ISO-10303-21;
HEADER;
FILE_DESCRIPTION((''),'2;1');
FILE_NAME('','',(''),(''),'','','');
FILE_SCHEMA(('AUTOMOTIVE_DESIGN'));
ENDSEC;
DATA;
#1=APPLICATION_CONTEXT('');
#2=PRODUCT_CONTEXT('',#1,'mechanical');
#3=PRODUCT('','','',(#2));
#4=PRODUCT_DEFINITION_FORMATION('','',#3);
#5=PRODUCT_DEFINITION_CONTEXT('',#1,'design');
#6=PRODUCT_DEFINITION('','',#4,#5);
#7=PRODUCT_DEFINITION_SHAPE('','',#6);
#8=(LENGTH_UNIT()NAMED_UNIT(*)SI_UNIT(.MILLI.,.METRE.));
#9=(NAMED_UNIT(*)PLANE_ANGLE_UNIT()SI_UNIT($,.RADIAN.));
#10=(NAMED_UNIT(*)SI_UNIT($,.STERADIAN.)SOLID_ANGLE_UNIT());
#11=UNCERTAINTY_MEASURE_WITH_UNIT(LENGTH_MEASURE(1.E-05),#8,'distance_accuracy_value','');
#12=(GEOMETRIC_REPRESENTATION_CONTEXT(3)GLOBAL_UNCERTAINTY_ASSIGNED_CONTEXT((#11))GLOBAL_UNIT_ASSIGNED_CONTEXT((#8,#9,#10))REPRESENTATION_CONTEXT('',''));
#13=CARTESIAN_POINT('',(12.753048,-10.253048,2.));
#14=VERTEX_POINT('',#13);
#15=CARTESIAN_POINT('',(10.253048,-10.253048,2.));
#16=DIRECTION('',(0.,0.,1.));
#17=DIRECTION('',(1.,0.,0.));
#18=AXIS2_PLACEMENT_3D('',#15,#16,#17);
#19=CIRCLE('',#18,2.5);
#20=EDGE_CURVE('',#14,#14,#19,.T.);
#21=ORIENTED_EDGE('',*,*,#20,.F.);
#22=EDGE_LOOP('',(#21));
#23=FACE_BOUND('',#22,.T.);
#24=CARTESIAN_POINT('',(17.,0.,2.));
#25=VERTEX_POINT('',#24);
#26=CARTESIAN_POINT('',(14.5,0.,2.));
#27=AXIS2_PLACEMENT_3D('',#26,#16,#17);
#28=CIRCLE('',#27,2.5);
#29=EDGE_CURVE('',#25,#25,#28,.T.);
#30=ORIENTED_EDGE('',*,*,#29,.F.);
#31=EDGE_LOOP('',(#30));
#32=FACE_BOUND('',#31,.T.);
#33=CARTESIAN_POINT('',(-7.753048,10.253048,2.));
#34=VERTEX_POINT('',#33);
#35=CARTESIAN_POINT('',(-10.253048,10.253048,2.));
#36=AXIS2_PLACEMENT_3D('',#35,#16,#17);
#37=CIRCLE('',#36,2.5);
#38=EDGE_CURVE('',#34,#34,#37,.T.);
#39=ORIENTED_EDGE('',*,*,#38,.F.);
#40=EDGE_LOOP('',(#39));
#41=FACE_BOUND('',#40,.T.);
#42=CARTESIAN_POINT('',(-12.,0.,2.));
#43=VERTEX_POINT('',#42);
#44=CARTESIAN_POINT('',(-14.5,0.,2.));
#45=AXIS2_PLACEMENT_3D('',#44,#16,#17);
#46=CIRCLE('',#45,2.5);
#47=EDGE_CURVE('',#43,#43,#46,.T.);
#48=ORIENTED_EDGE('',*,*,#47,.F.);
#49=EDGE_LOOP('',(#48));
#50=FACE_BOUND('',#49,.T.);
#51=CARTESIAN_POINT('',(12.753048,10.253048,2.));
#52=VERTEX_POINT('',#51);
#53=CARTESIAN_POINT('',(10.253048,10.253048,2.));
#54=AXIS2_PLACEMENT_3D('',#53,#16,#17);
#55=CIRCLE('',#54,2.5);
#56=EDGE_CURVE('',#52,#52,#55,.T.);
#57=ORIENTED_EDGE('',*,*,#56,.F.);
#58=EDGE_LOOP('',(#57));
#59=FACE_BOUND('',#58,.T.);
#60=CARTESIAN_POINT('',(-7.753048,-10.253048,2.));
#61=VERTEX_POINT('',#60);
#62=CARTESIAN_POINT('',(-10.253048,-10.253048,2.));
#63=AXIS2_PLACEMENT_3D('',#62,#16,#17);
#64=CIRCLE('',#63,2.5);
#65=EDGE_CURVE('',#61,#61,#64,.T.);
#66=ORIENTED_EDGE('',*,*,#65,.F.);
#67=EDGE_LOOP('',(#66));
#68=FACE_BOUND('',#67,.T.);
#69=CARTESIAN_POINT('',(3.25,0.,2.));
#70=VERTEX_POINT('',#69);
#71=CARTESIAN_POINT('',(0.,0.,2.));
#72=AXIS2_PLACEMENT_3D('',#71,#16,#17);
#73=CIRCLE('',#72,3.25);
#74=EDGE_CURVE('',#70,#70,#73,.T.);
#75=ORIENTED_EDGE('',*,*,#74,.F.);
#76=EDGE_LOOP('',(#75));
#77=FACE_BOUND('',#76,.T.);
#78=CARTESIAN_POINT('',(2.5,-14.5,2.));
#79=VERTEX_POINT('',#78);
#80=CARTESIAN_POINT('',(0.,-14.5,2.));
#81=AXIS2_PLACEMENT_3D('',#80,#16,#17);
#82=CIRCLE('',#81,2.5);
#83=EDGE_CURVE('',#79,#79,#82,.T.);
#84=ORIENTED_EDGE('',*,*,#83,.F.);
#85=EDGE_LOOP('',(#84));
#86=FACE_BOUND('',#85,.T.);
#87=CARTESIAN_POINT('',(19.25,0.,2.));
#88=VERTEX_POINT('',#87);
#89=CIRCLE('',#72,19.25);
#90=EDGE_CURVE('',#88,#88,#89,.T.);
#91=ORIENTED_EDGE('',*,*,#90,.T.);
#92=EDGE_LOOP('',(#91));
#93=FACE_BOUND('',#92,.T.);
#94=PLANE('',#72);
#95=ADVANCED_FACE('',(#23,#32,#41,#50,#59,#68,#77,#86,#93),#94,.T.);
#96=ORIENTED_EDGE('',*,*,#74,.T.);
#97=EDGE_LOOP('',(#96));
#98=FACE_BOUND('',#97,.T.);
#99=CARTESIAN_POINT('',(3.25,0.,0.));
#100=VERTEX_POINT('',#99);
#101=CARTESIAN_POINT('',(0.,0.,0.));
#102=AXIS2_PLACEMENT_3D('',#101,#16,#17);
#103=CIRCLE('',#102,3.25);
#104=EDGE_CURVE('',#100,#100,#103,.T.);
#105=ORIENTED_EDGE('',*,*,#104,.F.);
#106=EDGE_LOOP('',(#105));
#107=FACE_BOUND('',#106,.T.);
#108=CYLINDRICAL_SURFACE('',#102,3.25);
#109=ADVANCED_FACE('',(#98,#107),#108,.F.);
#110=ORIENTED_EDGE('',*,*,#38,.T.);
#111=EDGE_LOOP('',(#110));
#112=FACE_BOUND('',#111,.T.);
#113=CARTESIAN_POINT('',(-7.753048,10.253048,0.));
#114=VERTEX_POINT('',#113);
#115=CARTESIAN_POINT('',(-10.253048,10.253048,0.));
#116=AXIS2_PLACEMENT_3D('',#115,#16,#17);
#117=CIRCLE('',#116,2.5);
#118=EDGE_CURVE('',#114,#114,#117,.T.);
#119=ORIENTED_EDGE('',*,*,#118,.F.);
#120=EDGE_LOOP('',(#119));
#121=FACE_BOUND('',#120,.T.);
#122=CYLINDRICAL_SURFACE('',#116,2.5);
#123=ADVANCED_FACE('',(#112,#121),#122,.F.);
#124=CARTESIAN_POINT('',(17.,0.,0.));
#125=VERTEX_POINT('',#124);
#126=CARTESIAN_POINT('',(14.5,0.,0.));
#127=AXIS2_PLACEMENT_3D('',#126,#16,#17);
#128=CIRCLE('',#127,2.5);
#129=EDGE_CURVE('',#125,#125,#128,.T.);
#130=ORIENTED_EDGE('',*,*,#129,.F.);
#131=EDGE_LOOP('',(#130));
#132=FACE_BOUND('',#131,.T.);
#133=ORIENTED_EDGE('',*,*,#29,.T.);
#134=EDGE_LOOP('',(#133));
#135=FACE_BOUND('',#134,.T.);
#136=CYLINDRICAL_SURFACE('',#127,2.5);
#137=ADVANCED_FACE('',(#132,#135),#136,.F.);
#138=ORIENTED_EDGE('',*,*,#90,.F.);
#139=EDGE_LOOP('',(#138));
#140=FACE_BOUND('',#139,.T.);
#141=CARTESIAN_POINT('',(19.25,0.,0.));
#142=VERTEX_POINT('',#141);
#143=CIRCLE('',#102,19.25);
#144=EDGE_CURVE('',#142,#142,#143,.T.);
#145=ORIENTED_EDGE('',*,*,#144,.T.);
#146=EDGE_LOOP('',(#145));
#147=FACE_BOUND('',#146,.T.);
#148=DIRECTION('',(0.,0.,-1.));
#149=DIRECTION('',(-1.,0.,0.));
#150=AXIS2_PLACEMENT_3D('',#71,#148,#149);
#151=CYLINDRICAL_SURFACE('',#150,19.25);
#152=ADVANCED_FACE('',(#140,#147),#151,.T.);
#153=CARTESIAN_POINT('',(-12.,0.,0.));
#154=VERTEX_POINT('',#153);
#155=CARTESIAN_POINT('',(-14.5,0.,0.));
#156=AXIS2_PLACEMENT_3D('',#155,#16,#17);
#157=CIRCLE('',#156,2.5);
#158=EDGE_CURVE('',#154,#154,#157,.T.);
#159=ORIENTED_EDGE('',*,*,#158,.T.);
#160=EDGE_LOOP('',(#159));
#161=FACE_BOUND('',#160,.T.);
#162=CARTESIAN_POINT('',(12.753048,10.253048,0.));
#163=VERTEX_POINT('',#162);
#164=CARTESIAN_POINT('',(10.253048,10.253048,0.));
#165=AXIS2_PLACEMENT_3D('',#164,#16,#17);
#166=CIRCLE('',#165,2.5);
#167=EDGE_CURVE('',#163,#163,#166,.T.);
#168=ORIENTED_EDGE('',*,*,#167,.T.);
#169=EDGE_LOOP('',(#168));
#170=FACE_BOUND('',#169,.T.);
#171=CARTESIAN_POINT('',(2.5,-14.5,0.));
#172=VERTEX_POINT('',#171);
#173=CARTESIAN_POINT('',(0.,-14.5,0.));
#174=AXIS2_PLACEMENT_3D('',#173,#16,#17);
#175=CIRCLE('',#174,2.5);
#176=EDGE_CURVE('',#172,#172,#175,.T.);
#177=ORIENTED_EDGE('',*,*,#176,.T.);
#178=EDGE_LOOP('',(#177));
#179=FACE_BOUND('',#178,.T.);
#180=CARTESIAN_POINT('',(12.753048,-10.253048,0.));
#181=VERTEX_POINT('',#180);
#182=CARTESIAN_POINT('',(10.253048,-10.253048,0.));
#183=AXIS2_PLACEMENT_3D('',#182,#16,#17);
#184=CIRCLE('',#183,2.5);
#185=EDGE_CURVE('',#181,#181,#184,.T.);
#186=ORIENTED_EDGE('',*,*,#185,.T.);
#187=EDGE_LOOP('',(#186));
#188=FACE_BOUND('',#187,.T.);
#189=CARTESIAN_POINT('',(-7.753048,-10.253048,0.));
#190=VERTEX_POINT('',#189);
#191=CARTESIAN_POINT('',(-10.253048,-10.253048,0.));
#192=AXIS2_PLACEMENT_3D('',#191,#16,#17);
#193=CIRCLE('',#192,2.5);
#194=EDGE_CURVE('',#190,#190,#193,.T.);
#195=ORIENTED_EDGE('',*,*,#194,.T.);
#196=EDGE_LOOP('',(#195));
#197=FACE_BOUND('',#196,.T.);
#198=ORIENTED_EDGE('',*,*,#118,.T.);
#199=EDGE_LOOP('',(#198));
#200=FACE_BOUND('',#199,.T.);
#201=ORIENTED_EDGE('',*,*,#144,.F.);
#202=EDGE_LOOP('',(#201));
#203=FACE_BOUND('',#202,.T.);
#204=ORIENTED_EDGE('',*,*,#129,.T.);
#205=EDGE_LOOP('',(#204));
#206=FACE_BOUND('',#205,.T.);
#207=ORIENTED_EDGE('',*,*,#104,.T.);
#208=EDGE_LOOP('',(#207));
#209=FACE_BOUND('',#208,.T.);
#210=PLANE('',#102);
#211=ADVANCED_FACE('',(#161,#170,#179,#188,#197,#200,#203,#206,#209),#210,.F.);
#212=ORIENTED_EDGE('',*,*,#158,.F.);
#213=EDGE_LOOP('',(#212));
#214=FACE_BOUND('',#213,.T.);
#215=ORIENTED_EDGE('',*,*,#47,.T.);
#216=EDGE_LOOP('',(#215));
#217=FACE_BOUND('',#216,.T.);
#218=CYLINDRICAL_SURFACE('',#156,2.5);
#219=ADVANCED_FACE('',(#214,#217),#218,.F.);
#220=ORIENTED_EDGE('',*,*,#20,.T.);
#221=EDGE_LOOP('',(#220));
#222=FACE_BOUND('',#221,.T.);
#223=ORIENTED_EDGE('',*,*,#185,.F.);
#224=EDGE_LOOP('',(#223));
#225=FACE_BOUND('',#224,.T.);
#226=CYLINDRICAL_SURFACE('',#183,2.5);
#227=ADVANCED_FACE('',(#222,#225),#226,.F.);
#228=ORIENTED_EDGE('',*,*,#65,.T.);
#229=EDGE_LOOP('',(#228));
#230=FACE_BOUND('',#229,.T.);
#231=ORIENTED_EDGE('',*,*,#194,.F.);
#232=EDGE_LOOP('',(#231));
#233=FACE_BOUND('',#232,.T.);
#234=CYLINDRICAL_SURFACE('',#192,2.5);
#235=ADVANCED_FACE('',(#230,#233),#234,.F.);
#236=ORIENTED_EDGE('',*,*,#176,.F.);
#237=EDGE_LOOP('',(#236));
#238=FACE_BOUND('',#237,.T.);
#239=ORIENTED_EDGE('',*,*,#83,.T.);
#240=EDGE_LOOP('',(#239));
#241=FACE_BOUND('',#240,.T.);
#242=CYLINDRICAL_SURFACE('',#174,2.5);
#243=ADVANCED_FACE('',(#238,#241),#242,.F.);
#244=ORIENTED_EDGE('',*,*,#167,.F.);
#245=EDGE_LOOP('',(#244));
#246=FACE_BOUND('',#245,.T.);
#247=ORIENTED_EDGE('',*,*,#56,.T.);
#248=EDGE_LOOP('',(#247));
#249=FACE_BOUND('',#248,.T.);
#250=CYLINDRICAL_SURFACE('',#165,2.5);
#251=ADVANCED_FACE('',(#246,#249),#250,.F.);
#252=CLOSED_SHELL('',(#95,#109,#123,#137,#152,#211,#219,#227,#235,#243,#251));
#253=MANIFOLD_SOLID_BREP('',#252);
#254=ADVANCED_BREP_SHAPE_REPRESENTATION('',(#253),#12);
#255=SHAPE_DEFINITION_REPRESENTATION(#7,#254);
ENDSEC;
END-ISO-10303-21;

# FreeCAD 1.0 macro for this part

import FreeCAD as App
import Part
import Sketcher
from FreeCAD import Vector

doc = App.newDocument("Part")
body = doc.addObject("PartDesign::Body", "Body")

sketch1 = body.newObject("Sketcher::SketchObject", "Sketch")
sketch1.AttachmentSupport = (doc.getObject("XY_Plane"), [""])
sketch1.MapMode = "FlatFace"
sketch1.addGeometry(Part.Circle(Vector(0, 0, 0), Vector(0, 0, 1), 19.25), False)
sketch1.addConstraint(Sketcher.Constraint("Coincident", 0, 3, -1, 1))
sketch1.addConstraint(Sketcher.Constraint("Diameter", 0, 38.5))
pad1 = body.newObject("PartDesign::Pad", "Pad")
pad1.Profile = sketch1
pad1.Length = 2

sketch2 = body.newObject("Sketcher::SketchObject", "Sketch001")
sketch2.AttachmentSupport = (doc.getObject("XY_Plane"), [""])
sketch2.MapMode = "FlatFace"
sketch2.AttachmentOffset = App.Placement(Vector(0, 0, 2), App.Rotation())
sketch2.addGeometry(Part.Circle(Vector(-10.253048, 10.253048, 0), Vector(0, 0, 1), 2.5), False)
sketch2.addGeometry(Part.Circle(Vector(-14.5, 0, 0), Vector(0, 0, 1), 2.5), False)
sketch2.addGeometry(Part.Circle(Vector(-10.253048, -10.253048, 0), Vector(0, 0, 1), 2.5), False)
sketch2.addGeometry(Part.Circle(Vector(0, -14.5, 0), Vector(0, 0, 1), 2.5), False)
sketch2.addGeometry(Part.Circle(Vector(10.253048, -10.253048, 0), Vector(0, 0, 1), 2.5), False)
sketch2.addGeometry(Part.Circle(Vector(14.5, 0, 0), Vector(0, 0, 1), 2.5), False)
sketch2.addGeometry(Part.Circle(Vector(10.253048, 10.253048, 0), Vector(0, 0, 1), 2.5), False)
sketch2.addGeometry(Part.Circle(Vector(0, 0, 0), Vector(0, 0, 1), 3.25), False)
sketch2.addConstraint(Sketcher.Constraint("Coincident", 7, 3, -1, 1))
sketch2.addConstraint(Sketcher.Constraint("Equal", 0, 1))
sketch2.addConstraint(Sketcher.Constraint("Equal", 1, 2))
sketch2.addConstraint(Sketcher.Constraint("Equal", 2, 3))
sketch2.addConstraint(Sketcher.Constraint("Equal", 3, 4))
sketch2.addConstraint(Sketcher.Constraint("Equal", 4, 5))
sketch2.addConstraint(Sketcher.Constraint("Equal", 5, 6))
sketch2.addConstraint(Sketcher.Constraint("Symmetric", 0, 3, 4, 3, -1, 1))
sketch2.addConstraint(Sketcher.Constraint("Symmetric", 1, 3, 5, 3, -1, 1))
sketch2.addConstraint(Sketcher.Constraint("Symmetric", 2, 3, 6, 3, -1, 1))
sketch2.addConstraint(Sketcher.Constraint("Symmetric", 2, 3, 4, 3, -2))
sketch2.addConstraint(Sketcher.Constraint("PointOnObject", 1, 3, -1))
sketch2.addConstraint(Sketcher.Constraint("PointOnObject", 3, 3, -2))
sketch2.addConstraint(Sketcher.Constraint("Diameter", 0, 5.0))
sketch2.addConstraint(Sketcher.Constraint("Diameter", 7, 6.5))
sketch2.addConstraint(Sketcher.Constraint("DistanceX", 1, 3, 5, 3, 29.0))
sketch2.addConstraint(Sketcher.Constraint("DistanceY", 3, 3, -1, 1, 14.5))
sketch2.addConstraint(Sketcher.Constraint("DistanceX", 0, 3, -1, 1, 10.253048))
sketch2.addConstraint(Sketcher.Constraint("DistanceY", -1, 1, 0, 3, 10.253048))
pocket1 = body.newObject("PartDesign::Pocket", "Pocket")
pocket1.Profile = sketch2
pocket1.Type = "ThroughAll"

doc.recompute()
